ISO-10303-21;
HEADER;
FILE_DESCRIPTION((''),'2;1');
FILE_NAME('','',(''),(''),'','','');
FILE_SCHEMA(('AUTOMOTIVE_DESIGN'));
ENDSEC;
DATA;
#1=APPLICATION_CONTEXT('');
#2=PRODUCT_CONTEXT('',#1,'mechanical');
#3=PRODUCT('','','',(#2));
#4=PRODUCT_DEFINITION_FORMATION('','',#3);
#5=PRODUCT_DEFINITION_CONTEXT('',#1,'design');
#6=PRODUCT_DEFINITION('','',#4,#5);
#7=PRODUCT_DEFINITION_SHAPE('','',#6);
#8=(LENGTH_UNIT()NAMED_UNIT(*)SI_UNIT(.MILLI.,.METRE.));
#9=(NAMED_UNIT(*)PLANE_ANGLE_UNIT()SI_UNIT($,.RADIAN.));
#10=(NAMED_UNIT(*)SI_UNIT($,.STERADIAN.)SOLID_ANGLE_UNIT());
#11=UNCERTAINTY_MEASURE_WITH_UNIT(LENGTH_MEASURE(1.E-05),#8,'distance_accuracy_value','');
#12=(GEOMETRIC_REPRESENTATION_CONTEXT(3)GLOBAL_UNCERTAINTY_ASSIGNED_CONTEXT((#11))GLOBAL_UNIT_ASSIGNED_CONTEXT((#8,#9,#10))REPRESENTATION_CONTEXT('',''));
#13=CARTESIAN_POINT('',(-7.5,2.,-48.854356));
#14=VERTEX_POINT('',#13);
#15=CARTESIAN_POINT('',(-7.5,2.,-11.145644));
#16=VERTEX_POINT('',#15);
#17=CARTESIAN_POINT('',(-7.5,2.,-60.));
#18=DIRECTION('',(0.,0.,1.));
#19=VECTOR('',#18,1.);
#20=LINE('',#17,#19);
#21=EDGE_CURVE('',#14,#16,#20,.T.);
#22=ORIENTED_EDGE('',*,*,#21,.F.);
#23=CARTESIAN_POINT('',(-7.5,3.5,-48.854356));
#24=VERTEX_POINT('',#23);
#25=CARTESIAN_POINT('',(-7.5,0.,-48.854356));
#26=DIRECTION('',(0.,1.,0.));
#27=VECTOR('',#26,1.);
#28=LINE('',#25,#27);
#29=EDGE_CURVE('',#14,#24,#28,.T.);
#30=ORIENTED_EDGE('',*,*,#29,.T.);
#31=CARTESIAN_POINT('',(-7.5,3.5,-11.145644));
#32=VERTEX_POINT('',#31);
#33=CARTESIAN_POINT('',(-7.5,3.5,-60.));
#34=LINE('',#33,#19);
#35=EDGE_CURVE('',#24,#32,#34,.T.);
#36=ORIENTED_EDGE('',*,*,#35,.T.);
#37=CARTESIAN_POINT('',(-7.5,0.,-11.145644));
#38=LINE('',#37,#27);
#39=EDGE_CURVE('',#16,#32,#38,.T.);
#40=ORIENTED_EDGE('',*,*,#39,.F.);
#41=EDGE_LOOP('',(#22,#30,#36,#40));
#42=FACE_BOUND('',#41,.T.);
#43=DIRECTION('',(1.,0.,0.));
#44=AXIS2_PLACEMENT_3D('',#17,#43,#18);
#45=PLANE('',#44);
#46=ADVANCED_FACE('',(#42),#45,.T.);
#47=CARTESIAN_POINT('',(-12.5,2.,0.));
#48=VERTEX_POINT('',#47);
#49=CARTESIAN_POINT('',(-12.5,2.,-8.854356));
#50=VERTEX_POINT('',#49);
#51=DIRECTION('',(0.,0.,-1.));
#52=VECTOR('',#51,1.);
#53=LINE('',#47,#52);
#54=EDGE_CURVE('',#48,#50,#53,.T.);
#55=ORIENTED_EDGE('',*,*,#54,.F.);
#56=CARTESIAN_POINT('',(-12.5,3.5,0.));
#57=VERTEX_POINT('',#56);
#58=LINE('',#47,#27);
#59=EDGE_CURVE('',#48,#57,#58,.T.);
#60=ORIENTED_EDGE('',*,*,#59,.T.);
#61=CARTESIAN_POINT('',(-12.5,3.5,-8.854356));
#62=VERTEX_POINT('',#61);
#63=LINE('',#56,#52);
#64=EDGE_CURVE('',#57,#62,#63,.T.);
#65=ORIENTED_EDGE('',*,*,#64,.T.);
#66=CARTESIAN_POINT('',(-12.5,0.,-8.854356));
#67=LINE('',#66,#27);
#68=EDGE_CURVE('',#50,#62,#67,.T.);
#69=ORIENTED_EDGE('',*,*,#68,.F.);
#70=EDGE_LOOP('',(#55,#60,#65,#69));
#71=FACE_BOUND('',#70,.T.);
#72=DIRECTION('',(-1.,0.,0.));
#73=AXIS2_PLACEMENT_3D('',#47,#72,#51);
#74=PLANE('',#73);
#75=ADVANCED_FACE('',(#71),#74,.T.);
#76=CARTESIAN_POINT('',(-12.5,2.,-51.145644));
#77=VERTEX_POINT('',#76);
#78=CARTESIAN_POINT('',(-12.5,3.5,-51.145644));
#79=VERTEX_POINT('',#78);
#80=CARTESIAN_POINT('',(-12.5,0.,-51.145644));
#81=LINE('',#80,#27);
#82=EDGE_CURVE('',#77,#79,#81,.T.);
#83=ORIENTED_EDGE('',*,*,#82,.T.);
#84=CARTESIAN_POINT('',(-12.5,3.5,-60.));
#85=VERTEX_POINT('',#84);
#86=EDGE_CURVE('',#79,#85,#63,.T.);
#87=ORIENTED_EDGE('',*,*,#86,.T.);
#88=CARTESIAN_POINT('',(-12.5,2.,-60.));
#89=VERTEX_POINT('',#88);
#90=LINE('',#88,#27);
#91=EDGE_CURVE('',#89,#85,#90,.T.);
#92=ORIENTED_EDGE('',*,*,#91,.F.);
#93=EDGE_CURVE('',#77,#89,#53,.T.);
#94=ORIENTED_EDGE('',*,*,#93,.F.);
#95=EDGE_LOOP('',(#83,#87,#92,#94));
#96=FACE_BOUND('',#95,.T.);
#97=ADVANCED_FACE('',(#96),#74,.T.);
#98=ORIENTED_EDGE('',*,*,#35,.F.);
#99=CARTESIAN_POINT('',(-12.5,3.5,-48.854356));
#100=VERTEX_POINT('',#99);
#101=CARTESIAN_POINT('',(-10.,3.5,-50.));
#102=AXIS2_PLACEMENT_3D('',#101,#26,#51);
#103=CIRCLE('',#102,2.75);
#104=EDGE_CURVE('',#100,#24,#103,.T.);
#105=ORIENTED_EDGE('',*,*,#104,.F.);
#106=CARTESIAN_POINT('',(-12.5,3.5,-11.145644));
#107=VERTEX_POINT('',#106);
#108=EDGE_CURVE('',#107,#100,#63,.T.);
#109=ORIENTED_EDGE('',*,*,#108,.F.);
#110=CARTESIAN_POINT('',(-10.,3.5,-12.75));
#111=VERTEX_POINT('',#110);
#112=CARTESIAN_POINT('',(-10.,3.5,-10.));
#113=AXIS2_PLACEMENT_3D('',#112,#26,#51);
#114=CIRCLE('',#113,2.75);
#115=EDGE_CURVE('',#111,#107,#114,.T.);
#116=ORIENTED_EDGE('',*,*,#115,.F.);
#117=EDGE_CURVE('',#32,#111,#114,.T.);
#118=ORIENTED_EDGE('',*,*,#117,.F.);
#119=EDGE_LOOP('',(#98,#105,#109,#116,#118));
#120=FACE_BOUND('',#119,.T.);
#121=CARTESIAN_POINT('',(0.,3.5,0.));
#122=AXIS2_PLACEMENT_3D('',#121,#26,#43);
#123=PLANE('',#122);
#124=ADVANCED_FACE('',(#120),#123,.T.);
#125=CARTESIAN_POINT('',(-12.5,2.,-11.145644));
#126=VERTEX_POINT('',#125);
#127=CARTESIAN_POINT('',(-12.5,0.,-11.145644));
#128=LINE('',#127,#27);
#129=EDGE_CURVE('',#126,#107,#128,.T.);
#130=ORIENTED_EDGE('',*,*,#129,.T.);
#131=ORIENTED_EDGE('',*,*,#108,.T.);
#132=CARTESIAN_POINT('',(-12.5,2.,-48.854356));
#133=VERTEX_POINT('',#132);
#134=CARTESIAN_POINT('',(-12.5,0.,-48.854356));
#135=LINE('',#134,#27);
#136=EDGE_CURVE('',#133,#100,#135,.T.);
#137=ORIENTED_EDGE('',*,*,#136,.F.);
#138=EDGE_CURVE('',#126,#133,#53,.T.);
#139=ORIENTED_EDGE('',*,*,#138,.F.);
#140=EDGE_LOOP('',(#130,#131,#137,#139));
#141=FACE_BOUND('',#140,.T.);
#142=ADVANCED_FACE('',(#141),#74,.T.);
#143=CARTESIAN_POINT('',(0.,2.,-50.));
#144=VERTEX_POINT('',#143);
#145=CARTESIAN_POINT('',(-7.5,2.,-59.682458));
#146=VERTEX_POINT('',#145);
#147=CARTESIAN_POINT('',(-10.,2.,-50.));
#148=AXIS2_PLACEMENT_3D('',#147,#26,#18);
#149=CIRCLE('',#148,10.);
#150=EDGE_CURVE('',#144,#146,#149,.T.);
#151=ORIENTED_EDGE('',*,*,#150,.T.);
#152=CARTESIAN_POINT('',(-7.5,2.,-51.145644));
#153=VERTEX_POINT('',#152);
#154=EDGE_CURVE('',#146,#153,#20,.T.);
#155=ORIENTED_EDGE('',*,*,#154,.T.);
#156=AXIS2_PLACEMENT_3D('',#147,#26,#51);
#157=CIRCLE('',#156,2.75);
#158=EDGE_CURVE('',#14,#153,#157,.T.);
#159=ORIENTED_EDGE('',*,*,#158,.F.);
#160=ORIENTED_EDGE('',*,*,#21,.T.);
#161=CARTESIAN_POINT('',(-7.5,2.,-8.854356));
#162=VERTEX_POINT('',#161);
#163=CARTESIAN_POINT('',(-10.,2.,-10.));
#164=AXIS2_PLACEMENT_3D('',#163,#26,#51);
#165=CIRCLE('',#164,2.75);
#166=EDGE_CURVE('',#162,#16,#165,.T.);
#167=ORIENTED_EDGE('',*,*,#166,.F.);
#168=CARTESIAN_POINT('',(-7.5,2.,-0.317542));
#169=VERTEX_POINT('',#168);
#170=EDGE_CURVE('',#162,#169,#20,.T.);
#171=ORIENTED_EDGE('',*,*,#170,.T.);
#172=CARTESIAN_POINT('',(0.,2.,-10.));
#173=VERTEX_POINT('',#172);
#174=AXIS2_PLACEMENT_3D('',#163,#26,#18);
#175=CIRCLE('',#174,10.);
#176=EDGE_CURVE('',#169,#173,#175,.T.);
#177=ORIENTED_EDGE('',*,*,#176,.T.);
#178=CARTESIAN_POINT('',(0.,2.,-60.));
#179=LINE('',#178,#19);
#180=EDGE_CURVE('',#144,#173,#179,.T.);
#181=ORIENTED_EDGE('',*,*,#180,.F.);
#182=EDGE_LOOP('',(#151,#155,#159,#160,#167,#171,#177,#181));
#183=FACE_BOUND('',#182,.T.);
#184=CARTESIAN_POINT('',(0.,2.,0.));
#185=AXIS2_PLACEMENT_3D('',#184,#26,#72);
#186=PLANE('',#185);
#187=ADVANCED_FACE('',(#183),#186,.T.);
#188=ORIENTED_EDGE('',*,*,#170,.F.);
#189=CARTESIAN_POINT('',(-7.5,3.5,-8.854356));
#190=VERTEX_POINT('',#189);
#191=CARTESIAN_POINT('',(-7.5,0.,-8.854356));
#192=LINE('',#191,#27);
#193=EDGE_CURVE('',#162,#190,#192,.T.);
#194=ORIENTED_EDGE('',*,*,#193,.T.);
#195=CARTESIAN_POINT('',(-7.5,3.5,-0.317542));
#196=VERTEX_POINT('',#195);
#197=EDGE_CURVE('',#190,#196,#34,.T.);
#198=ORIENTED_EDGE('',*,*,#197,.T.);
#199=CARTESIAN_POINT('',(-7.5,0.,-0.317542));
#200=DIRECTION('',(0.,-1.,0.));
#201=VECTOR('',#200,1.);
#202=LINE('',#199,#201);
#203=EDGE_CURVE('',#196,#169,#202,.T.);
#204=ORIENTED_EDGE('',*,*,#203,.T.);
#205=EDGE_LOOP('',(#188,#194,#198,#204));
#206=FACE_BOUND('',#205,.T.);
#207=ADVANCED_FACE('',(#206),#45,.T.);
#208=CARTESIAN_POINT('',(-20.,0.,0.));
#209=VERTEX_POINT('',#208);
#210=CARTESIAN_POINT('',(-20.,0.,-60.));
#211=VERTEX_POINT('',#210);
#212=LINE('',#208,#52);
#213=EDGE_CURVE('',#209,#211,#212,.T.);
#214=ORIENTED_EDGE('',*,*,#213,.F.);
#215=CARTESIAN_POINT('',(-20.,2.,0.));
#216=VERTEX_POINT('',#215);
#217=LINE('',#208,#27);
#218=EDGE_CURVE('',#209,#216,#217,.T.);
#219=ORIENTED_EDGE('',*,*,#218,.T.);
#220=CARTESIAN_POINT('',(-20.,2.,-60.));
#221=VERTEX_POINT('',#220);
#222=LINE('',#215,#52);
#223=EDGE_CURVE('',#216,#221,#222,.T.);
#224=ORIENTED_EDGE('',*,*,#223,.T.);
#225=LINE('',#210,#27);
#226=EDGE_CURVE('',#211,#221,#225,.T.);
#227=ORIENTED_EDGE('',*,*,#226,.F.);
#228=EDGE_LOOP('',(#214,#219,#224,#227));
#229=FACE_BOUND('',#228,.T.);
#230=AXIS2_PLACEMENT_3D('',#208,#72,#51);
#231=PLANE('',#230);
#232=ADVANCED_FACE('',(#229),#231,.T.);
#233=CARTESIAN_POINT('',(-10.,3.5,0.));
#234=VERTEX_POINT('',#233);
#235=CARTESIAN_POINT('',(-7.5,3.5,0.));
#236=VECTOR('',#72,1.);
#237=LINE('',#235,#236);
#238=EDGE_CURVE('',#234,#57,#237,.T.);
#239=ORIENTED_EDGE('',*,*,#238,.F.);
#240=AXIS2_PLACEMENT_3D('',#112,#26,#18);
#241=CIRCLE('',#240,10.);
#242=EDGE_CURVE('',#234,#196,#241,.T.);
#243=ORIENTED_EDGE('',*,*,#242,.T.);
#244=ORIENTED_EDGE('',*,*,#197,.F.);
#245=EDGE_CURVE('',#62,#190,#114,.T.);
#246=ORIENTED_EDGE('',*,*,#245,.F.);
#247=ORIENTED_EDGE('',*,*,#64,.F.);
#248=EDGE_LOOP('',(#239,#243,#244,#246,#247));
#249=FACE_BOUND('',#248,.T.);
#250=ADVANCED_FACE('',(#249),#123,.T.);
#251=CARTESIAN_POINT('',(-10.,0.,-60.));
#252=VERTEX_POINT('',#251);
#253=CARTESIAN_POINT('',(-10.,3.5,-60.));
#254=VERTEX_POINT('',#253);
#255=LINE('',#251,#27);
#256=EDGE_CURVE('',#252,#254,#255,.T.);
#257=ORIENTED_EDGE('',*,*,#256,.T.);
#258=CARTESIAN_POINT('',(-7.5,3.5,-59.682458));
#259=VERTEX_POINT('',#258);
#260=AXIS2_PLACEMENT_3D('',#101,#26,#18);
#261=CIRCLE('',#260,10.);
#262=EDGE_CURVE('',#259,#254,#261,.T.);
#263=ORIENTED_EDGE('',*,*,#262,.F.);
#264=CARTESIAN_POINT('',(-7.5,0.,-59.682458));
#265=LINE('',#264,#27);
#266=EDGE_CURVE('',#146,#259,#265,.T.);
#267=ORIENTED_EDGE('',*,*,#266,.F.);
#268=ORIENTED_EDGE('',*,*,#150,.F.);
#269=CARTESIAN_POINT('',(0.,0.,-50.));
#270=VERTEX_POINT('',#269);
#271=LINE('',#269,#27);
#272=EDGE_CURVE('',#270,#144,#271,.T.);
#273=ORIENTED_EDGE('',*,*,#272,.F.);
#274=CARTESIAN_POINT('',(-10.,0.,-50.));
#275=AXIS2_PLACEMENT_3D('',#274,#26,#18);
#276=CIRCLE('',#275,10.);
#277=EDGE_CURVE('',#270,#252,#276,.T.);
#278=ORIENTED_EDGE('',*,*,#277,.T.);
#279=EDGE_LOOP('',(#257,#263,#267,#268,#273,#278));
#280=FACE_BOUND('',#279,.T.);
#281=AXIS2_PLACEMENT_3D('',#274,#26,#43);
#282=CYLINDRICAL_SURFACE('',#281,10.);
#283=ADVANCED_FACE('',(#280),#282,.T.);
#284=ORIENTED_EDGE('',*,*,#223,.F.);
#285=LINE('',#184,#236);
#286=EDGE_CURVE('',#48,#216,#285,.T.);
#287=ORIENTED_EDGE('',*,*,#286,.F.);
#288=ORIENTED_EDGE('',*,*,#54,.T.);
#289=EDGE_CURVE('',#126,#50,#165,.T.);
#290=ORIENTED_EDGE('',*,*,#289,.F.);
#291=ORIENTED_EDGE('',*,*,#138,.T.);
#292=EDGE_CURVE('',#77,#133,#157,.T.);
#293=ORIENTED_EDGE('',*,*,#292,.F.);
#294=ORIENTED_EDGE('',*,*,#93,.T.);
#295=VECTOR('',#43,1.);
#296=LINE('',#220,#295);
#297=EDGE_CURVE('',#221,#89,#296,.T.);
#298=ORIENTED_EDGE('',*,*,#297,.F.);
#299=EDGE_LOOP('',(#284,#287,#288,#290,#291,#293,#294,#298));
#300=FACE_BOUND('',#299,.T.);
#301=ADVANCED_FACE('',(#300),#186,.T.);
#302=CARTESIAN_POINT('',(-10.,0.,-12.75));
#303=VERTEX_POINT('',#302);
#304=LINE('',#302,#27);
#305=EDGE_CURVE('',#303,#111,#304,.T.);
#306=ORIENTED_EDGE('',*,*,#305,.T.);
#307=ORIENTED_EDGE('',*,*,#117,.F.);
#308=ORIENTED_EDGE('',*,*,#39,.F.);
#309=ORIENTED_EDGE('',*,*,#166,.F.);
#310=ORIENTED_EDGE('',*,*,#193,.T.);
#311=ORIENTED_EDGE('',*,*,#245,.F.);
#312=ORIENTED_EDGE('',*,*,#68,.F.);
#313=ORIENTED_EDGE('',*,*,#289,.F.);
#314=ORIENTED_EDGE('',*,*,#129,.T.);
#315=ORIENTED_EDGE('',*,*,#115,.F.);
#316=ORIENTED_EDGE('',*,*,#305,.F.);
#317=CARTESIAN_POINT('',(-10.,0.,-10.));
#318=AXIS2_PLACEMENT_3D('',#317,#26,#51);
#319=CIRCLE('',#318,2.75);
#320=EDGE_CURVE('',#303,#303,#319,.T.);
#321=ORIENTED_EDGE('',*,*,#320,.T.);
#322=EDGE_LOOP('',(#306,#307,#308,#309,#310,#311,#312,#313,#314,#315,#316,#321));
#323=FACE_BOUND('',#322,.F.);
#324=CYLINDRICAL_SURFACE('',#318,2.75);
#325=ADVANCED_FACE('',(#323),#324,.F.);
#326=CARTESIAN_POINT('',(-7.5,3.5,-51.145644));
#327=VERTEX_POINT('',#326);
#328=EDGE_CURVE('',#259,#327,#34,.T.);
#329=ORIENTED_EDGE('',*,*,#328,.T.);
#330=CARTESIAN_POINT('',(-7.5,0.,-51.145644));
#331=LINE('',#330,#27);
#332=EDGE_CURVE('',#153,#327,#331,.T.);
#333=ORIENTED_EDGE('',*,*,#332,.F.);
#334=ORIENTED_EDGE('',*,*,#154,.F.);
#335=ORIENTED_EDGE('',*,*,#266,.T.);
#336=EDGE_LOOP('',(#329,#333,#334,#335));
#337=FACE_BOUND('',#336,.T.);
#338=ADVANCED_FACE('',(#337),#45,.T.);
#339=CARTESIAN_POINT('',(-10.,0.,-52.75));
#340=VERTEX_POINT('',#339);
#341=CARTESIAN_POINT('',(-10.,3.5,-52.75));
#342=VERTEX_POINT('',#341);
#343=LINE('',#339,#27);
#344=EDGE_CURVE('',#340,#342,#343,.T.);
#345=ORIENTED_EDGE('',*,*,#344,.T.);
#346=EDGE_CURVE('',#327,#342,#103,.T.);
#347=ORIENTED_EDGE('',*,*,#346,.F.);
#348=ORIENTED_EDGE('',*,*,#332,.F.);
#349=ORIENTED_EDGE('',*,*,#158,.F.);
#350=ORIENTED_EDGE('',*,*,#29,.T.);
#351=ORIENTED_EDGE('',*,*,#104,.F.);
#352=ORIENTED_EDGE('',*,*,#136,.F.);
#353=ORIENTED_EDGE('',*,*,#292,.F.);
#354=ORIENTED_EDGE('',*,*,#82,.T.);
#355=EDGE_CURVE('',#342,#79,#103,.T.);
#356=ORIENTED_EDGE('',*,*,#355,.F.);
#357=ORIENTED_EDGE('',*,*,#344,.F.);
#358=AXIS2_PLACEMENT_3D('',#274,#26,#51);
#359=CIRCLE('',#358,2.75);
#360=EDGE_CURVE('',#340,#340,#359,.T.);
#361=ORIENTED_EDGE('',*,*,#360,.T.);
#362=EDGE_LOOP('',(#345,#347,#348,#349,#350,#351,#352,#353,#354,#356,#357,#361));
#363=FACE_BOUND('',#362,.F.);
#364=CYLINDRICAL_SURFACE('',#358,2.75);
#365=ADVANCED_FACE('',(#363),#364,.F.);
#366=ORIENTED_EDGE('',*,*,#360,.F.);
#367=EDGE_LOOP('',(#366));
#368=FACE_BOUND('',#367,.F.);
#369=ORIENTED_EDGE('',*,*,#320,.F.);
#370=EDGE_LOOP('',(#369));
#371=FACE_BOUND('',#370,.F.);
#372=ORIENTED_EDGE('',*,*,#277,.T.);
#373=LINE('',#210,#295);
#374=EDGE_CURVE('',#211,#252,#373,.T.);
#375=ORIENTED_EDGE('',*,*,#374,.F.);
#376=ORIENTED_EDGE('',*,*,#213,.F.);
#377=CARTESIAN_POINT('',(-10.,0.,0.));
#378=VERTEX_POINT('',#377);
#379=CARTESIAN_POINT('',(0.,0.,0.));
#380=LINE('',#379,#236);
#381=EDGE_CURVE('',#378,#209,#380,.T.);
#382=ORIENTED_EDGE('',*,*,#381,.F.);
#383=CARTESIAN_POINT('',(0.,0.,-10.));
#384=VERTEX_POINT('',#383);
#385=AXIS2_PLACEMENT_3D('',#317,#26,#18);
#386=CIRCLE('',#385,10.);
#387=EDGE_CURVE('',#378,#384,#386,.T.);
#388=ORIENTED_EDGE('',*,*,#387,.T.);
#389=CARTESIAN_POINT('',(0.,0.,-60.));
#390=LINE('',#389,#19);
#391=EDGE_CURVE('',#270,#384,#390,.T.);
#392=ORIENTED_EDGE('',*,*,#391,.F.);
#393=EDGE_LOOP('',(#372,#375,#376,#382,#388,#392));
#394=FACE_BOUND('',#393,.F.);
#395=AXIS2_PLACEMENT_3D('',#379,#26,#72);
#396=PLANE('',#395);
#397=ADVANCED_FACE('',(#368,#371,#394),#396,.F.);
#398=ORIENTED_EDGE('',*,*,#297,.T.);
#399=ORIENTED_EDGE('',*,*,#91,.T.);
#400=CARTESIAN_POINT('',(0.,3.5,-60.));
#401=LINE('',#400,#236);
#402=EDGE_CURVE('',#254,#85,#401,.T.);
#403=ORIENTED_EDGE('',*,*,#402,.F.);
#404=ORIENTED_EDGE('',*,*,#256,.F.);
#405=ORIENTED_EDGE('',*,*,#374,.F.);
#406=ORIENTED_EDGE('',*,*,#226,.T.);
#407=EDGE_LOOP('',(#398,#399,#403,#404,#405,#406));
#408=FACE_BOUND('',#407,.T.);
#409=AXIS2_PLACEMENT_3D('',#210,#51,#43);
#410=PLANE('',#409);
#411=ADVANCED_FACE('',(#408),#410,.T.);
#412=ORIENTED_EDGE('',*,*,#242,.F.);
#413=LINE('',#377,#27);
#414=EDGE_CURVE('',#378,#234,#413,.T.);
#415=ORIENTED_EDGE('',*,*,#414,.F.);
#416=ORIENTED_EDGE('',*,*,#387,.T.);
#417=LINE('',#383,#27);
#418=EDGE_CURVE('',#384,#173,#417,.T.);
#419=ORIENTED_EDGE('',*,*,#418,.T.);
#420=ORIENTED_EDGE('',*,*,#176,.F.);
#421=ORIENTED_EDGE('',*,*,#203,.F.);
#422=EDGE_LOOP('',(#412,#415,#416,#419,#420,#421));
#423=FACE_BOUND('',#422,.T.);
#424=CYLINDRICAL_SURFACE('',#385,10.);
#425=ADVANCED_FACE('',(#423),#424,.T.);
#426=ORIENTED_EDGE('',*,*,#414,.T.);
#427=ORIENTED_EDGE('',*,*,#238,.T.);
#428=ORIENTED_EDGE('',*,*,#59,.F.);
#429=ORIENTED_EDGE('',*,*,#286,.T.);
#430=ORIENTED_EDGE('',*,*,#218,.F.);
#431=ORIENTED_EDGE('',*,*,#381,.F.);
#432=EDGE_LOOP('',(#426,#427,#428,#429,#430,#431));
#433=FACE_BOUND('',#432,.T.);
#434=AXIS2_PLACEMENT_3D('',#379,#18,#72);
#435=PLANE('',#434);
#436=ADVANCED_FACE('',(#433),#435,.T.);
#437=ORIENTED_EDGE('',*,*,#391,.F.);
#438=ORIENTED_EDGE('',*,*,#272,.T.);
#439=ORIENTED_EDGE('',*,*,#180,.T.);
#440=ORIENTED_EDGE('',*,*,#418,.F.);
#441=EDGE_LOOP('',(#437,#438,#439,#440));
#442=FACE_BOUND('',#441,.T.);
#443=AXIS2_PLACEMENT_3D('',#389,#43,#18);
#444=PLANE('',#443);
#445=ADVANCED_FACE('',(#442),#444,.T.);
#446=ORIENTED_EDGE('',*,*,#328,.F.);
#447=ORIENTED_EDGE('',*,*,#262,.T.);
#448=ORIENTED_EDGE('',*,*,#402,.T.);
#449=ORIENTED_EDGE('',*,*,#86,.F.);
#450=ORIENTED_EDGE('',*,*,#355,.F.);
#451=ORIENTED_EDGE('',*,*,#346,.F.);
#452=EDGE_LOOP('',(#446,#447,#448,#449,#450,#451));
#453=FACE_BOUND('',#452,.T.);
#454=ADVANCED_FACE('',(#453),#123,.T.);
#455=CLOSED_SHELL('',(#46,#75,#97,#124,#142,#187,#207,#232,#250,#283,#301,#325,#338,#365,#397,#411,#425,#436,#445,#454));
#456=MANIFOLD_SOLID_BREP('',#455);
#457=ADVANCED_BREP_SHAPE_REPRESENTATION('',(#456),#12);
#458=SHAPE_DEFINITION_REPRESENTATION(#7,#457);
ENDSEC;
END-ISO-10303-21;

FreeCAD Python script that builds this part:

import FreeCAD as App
import Part
import Sketcher
Q = App.Units.Quantity


def edges_at(feature, points):
    """Names of the edges that pass closest to the given points."""
    edges = feature.Shape.Edges
    near = lambda p: min(range(len(edges)), key=lambda i: edges[i].distToShape(Part.Vertex(*p))[0])
    return sorted({f"Edge{near(p) + 1}" for p in points})

doc = App.newDocument("Part")
body = doc.addObject("PartDesign::Body", "Body")

sketch1 = body.newObject("Sketcher::SketchObject", "Sketch")
sketch1.AttachmentSupport = (doc.getObject("XZ_Plane"), [""])
sketch1.MapMode = "FlatFace"
sketch1.addGeometry(Part.LineSegment(App.Vector(-20, 0, 0), App.Vector(0, 0, 0)), False)
sketch1.addGeometry(Part.LineSegment(App.Vector(0, 0, 0), App.Vector(0, -60, 0)), False)
sketch1.addGeometry(Part.LineSegment(App.Vector(0, -60, 0), App.Vector(-20, -60, 0)), False)
sketch1.addGeometry(Part.LineSegment(App.Vector(-20, -60, 0), App.Vector(-20, 0, 0)), False)
sketch1.addConstraint(Sketcher.Constraint("Coincident", 0, 2, 1, 1))
sketch1.addConstraint(Sketcher.Constraint("Coincident", 1, 2, 2, 1))
sketch1.addConstraint(Sketcher.Constraint("Coincident", 2, 2, 3, 1))
sketch1.addConstraint(Sketcher.Constraint("Coincident", 3, 2, 0, 1))
sketch1.addConstraint(Sketcher.Constraint("Horizontal", 0))
sketch1.addConstraint(Sketcher.Constraint("Vertical", 1))
sketch1.addConstraint(Sketcher.Constraint("Horizontal", 2))
sketch1.addConstraint(Sketcher.Constraint("Vertical", 3))
sketch1.addConstraint(Sketcher.Constraint("Coincident", 0, 2, -1, 1))
sketch1.addConstraint(Sketcher.Constraint("DistanceX", 0, 1, 0, 2, Q("20 mm")))
sketch1.addConstraint(Sketcher.Constraint("DistanceY", 1, 2, 1, 1, Q("60 mm")))
pad1 = body.newObject("PartDesign::Pad", "Pad")
pad1.Profile = sketch1
pad1.Length = 2
pad1.Reversed = True

sketch2 = body.newObject("Sketcher::SketchObject", "Sketch001")
sketch2.AttachmentSupport = (doc.getObject("XZ_Plane"), [""])
sketch2.MapMode = "FlatFace"
sketch2.AttachmentOffset = App.Placement(App.Vector(0, 0, -2), App.Rotation())
sketch2.addGeometry(Part.LineSegment(App.Vector(-8, 0, 0), App.Vector(-8, -60, 0)), False)
sketch2.addGeometry(Part.LineSegment(App.Vector(-8, -60, 0), App.Vector(-12, -60, 0)), False)
sketch2.addGeometry(Part.LineSegment(App.Vector(-12, -60, 0), App.Vector(-12, 0, 0)), False)
sketch2.addGeometry(Part.LineSegment(App.Vector(-12, 0, 0), App.Vector(-8, 0, 0)), False)
sketch2.addConstraint(Sketcher.Constraint("Coincident", 0, 2, 1, 1))
sketch2.addConstraint(Sketcher.Constraint("Coincident", 1, 2, 2, 1))
sketch2.addConstraint(Sketcher.Constraint("Coincident", 2, 2, 3, 1))
sketch2.addConstraint(Sketcher.Constraint("Coincident", 3, 2, 0, 1))
sketch2.addConstraint(Sketcher.Constraint("Vertical", 0))
sketch2.addConstraint(Sketcher.Constraint("Horizontal", 1))
sketch2.addConstraint(Sketcher.Constraint("Vertical", 2))
sketch2.addConstraint(Sketcher.Constraint("Horizontal", 3))
sketch2.addConstraint(Sketcher.Constraint("PointOnObject", 2, 2, -1))
sketch2.addConstraint(Sketcher.Constraint("DistanceX", 1, 2, 1, 1, Q("5 mm")))
sketch2.addConstraint(Sketcher.Constraint("DistanceY", 0, 2, 0, 1, Q("60 mm")))
sketch2.addConstraint(Sketcher.Constraint("DistanceX", 0, 2, -1, 1, Q("7.5 mm")))
pad2 = body.newObject("PartDesign::Pad", "Pad001")
pad2.Profile = sketch2
pad2.Length = 1.5
pad2.Reversed = True
doc.recompute()

fillet = body.newObject("PartDesign::Fillet", "Fillet")
fillet.Base = (pad2, edges_at(pad2, [(0, 1, 0), (0, 1, -60)]))
fillet.Radius = 10

sketch3 = body.newObject("Sketcher::SketchObject", "Sketch002")
sketch3.AttachmentSupport = (doc.getObject("XZ_Plane"), [""])
sketch3.MapMode = "FlatFace"
sketch3.addGeometry(Part.Circle(App.Vector(-10, -50, 0), App.Vector(0, 0, 1), 2.8), False)
sketch3.addGeometry(Part.Circle(App.Vector(-10, -10, 0), App.Vector(0, 0, 1), 2.8), False)
sketch3.addConstraint(Sketcher.Constraint("Equal", 0, 1))
sketch3.addConstraint(Sketcher.Constraint("Vertical", 0, 3, 1, 3))
sketch3.addConstraint(Sketcher.Constraint("Diameter", 0, Q("5.5 mm")))
sketch3.addConstraint(Sketcher.Constraint("DistanceX", 0, 3, -1, 1, Q("10 mm")))
sketch3.addConstraint(Sketcher.Constraint("DistanceY", 0, 3, -1, 1, Q("50 mm")))
sketch3.addConstraint(Sketcher.Constraint("DistanceY", 1, 3, -1, 1, Q("10 mm")))
doc.recompute()
hole = body.newObject("PartDesign::Hole", "Hole")
hole.Profile = sketch3
hole.ThreadType = "None"
hole.Diameter = 5.5
hole.DepthType = "ThroughAll"

doc.recompute()
